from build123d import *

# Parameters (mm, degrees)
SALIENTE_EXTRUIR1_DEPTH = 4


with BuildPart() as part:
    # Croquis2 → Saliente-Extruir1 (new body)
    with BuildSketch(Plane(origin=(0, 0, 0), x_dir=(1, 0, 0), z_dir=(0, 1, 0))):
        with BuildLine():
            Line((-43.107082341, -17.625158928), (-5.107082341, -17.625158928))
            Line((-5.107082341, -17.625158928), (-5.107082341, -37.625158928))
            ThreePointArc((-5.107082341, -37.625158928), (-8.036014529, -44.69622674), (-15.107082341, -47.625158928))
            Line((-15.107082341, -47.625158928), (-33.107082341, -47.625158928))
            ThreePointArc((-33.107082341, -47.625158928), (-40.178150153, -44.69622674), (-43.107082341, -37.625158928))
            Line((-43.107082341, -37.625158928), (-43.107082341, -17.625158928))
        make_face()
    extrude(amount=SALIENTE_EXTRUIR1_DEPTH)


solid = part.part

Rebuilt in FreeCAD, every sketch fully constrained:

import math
import FreeCAD as App
import Part
import Sketcher

V = App.Vector
Q = App.Units.Quantity

doc = App.newDocument("Part")
body = doc.addObject("PartDesign::Body", "Body")

# Sketch on XZ plane
sketch1 = doc.addObject("Sketcher::SketchObject", "Sketch")
body.addObject(sketch1)
sketch1.AttachmentSupport = (doc.XZ_Plane, [""])
sketch1.MapMode = "FlatFace"
sketch1.addGeometry([
    Part.LineSegment(V(-5, 18, 0), V(-43, 18, 0)),  # 0
    Part.LineSegment(V(-43, 18, 0), V(-43, 38, 0)),  # 1
    Part.ArcOfCircle(Part.Circle(V(-33, 38, 0), V(0, 0, 1), 10), math.radians(90), math.radians(180)),  # 2
    Part.LineSegment(V(-33, 48, 0), V(-15, 48, 0)),  # 3
    Part.ArcOfCircle(Part.Circle(V(-15, 38, 0), V(0, 0, 1), 10), math.radians(0), math.radians(90)),  # 4
    Part.LineSegment(V(-5, 38, 0), V(-5, 18, 0)),  # 5
], False)
sketch1.addConstraint([
    Sketcher.Constraint("Coincident", 0, 2, 1, 1),
    Sketcher.Constraint("Tangent", 1, 2, 2, 2),
    Sketcher.Constraint("Tangent", 2, 1, 3, 1),
    Sketcher.Constraint("Tangent", 3, 2, 4, 2),
    Sketcher.Constraint("Tangent", 4, 1, 5, 1),
    Sketcher.Constraint("Coincident", 5, 2, 0, 1),
    Sketcher.Constraint("Horizontal", 0),
    Sketcher.Constraint("Vertical", 1),
    Sketcher.Constraint("Horizontal", 3),
    Sketcher.Constraint("Vertical", 5),
    Sketcher.Constraint("Equal", 2, 4),
    Sketcher.Constraint("Radius", 2, Q("10 mm")),
    Sketcher.Constraint("DistanceX", 0, 2, 0, 1, Q("38 mm")),
    Sketcher.Constraint("DistanceY", 1, 1, 1, 2, Q("20 mm")),
    Sketcher.Constraint("DistanceY", -1, 1, 2, 3, Q("37.625159 mm")),
    Sketcher.Constraint("DistanceX", 2, 3, -1, 1, Q("33.107082 mm")),
])
pad1 = doc.addObject("PartDesign::Pad", "Pad")
body.addObject(pad1)
pad1.Profile = sketch1
pad1.Length = 4
pad1.Reversed = True

doc.recompute()
